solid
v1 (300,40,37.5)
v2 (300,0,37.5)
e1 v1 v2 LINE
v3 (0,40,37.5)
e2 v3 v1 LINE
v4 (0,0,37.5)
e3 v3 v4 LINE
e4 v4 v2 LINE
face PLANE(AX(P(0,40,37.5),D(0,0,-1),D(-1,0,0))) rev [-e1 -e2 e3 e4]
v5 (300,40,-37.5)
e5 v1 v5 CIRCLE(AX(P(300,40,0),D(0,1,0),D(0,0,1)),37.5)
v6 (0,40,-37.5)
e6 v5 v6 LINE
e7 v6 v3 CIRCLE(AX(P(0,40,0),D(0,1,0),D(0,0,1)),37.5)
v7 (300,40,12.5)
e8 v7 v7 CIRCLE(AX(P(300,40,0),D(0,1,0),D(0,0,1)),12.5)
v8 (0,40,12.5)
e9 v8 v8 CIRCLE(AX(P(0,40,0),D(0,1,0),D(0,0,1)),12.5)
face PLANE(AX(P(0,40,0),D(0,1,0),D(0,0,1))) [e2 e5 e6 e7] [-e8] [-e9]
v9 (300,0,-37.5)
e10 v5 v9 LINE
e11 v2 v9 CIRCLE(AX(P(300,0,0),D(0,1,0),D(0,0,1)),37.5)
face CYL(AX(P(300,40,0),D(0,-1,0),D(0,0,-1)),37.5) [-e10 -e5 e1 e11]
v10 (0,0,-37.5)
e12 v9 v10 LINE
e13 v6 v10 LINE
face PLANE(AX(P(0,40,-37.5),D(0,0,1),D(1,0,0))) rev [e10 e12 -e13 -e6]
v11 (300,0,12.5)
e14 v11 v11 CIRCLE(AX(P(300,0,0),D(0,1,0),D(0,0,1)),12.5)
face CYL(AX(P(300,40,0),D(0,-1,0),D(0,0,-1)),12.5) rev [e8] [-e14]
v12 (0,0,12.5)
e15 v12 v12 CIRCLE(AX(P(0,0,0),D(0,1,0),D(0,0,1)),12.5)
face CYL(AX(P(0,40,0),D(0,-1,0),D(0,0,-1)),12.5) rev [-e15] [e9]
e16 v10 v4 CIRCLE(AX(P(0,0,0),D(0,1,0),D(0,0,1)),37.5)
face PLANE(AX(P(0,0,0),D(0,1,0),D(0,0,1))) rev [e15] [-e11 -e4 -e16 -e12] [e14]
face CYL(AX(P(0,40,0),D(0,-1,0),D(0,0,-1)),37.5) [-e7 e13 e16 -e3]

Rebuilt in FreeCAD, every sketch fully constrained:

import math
import FreeCAD as App
import Part
import Sketcher
Q = App.Units.Quantity

doc = App.newDocument("Part")
params = doc.addObject("Spreadsheet::Sheet", "Params")
for row, (alias, value) in enumerate([
    ("sketch1_diameter", "25 mm"),
    ("sketch1_radius", "37.5 mm"),
    ("sketch1_width", "300 mm"),
    ("pad1_length", "40 mm"),
], start=1):
    params.set(f"A{row}", alias)
    params.set(f"B{row}", "=" + value)
    params.setAlias(f"B{row}", alias)

body = doc.addObject("PartDesign::Body", "Body")

# Sketch on XZ plane
sketch1 = body.newObject("Sketcher::SketchObject", "Sketch")
sketch1.AttachmentSupport = (doc.getObject("XZ_Plane"), [""])
sketch1.MapMode = "FlatFace"
sketch1.addGeometry([
    Part.LineSegment(App.Vector(300, -38, 0), App.Vector(0, -38, 0)),  # 0
    Part.ArcOfCircle(Part.Circle(App.Vector(0, 0, 0), App.Vector(0, 0, 1), 38), math.radians(90), math.radians(270)),  # 1
    Part.LineSegment(App.Vector(0, 38, 0), App.Vector(300, 38, 0)),  # 2
    Part.ArcOfCircle(Part.Circle(App.Vector(300, 0, 0), App.Vector(0, 0, 1), 38), math.radians(-90), math.radians(90)),  # 3
    Part.Circle(App.Vector(300, 0, 0), App.Vector(0, 0, 1), 12),  # 4
    Part.Circle(App.Vector(0, 0, 0), App.Vector(0, 0, 1), 12),  # 5
], False)
sketch1.addConstraint([
    Sketcher.Constraint("Tangent", 0, 2, 1, 2),
    Sketcher.Constraint("Tangent", 1, 1, 2, 1),
    Sketcher.Constraint("Tangent", 2, 2, 3, 2),
    Sketcher.Constraint("Tangent", 3, 1, 0, 1),
    Sketcher.Constraint("Horizontal", 0),
    Sketcher.Constraint("Horizontal", 2),
    Sketcher.Constraint("Coincident", 1, 3, -1, 1),
    Sketcher.Constraint("Coincident", 5, 3, -1, 1),
    Sketcher.Constraint("Coincident", 4, 3, 3, 3),
    Sketcher.Constraint("Equal", 4, 5),
    Sketcher.Constraint("Diameter", 4, Q("25 mm")),
    Sketcher.Constraint("Radius", 1, Q("37.5 mm")),
    Sketcher.Constraint("DistanceX", 0, 2, 0, 1, Q("300 mm")),
])
sketch1.setExpression("Constraints[10]", "Params.sketch1_diameter")
sketch1.setExpression("Constraints[11]", "Params.sketch1_radius")
sketch1.setExpression("Constraints[12]", "Params.sketch1_width")
pad1 = body.newObject("PartDesign::Pad", "Pad")
pad1.Profile = sketch1
pad1.setExpression("Length", "Params.pad1_length")
pad1.Reversed = True

doc.recompute()
